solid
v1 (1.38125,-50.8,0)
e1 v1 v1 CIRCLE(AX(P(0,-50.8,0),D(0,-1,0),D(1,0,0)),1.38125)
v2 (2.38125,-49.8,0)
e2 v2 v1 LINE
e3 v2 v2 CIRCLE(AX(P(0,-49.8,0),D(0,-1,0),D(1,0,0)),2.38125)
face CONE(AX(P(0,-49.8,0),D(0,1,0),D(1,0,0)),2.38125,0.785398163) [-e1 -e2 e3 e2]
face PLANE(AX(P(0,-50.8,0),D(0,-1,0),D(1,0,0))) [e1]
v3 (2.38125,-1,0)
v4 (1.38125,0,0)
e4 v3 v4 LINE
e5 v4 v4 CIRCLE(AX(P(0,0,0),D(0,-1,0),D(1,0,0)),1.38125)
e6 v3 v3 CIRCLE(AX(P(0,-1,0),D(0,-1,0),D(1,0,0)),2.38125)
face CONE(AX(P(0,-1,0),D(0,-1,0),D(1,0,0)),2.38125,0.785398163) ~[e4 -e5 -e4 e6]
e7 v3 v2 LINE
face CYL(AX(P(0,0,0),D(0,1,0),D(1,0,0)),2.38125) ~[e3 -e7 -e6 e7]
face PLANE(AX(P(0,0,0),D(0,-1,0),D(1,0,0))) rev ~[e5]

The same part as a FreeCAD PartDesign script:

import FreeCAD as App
import Part
import Sketcher

V = App.Vector
Q = App.Units.Quantity


def edges_at(feature, points):
    """Names of the edges that pass closest to the given points."""
    edges = feature.Shape.Edges
    near = lambda p: min(range(len(edges)), key=lambda i: edges[i].distToShape(Part.Vertex(*p))[0])
    return sorted({f"Edge{near(p) + 1}" for p in points})

doc = App.newDocument("Part")
body = doc.addObject("PartDesign::Body", "Body")

sketch1 = body.newObject("Sketcher::SketchObject", "Sketch")
sketch1.AttachmentSupport = (doc.getObject("XZ_Plane"), [""])
sketch1.MapMode = "FlatFace"
sketch1.addGeometry(Part.Circle(V(0, 0, 0), V(0, 0, 1), 2.4), False)
sketch1.addConstraint([
    Sketcher.Constraint("Coincident", 0, 3, -1, 1),
    Sketcher.Constraint("Diameter", 0, Q("0.1875 in")),
])
pad1 = body.newObject("PartDesign::Pad", "Pad")
pad1.Profile = sketch1
pad1.Length = Q("2 in")
doc.recompute()

chamfer = body.newObject("PartDesign::Chamfer", "Chamfer")
chamfer.Base = (pad1, edges_at(pad1, [(-2.381, -50.8, 0)]))
chamfer.Size = 1
doc.recompute()

chamfer2 = body.newObject("PartDesign::Chamfer", "Chamfer001")
chamfer2.Base = (chamfer, edges_at(chamfer, [(-2.381, 0, 0)]))
chamfer2.Size = 1

doc.recompute()
